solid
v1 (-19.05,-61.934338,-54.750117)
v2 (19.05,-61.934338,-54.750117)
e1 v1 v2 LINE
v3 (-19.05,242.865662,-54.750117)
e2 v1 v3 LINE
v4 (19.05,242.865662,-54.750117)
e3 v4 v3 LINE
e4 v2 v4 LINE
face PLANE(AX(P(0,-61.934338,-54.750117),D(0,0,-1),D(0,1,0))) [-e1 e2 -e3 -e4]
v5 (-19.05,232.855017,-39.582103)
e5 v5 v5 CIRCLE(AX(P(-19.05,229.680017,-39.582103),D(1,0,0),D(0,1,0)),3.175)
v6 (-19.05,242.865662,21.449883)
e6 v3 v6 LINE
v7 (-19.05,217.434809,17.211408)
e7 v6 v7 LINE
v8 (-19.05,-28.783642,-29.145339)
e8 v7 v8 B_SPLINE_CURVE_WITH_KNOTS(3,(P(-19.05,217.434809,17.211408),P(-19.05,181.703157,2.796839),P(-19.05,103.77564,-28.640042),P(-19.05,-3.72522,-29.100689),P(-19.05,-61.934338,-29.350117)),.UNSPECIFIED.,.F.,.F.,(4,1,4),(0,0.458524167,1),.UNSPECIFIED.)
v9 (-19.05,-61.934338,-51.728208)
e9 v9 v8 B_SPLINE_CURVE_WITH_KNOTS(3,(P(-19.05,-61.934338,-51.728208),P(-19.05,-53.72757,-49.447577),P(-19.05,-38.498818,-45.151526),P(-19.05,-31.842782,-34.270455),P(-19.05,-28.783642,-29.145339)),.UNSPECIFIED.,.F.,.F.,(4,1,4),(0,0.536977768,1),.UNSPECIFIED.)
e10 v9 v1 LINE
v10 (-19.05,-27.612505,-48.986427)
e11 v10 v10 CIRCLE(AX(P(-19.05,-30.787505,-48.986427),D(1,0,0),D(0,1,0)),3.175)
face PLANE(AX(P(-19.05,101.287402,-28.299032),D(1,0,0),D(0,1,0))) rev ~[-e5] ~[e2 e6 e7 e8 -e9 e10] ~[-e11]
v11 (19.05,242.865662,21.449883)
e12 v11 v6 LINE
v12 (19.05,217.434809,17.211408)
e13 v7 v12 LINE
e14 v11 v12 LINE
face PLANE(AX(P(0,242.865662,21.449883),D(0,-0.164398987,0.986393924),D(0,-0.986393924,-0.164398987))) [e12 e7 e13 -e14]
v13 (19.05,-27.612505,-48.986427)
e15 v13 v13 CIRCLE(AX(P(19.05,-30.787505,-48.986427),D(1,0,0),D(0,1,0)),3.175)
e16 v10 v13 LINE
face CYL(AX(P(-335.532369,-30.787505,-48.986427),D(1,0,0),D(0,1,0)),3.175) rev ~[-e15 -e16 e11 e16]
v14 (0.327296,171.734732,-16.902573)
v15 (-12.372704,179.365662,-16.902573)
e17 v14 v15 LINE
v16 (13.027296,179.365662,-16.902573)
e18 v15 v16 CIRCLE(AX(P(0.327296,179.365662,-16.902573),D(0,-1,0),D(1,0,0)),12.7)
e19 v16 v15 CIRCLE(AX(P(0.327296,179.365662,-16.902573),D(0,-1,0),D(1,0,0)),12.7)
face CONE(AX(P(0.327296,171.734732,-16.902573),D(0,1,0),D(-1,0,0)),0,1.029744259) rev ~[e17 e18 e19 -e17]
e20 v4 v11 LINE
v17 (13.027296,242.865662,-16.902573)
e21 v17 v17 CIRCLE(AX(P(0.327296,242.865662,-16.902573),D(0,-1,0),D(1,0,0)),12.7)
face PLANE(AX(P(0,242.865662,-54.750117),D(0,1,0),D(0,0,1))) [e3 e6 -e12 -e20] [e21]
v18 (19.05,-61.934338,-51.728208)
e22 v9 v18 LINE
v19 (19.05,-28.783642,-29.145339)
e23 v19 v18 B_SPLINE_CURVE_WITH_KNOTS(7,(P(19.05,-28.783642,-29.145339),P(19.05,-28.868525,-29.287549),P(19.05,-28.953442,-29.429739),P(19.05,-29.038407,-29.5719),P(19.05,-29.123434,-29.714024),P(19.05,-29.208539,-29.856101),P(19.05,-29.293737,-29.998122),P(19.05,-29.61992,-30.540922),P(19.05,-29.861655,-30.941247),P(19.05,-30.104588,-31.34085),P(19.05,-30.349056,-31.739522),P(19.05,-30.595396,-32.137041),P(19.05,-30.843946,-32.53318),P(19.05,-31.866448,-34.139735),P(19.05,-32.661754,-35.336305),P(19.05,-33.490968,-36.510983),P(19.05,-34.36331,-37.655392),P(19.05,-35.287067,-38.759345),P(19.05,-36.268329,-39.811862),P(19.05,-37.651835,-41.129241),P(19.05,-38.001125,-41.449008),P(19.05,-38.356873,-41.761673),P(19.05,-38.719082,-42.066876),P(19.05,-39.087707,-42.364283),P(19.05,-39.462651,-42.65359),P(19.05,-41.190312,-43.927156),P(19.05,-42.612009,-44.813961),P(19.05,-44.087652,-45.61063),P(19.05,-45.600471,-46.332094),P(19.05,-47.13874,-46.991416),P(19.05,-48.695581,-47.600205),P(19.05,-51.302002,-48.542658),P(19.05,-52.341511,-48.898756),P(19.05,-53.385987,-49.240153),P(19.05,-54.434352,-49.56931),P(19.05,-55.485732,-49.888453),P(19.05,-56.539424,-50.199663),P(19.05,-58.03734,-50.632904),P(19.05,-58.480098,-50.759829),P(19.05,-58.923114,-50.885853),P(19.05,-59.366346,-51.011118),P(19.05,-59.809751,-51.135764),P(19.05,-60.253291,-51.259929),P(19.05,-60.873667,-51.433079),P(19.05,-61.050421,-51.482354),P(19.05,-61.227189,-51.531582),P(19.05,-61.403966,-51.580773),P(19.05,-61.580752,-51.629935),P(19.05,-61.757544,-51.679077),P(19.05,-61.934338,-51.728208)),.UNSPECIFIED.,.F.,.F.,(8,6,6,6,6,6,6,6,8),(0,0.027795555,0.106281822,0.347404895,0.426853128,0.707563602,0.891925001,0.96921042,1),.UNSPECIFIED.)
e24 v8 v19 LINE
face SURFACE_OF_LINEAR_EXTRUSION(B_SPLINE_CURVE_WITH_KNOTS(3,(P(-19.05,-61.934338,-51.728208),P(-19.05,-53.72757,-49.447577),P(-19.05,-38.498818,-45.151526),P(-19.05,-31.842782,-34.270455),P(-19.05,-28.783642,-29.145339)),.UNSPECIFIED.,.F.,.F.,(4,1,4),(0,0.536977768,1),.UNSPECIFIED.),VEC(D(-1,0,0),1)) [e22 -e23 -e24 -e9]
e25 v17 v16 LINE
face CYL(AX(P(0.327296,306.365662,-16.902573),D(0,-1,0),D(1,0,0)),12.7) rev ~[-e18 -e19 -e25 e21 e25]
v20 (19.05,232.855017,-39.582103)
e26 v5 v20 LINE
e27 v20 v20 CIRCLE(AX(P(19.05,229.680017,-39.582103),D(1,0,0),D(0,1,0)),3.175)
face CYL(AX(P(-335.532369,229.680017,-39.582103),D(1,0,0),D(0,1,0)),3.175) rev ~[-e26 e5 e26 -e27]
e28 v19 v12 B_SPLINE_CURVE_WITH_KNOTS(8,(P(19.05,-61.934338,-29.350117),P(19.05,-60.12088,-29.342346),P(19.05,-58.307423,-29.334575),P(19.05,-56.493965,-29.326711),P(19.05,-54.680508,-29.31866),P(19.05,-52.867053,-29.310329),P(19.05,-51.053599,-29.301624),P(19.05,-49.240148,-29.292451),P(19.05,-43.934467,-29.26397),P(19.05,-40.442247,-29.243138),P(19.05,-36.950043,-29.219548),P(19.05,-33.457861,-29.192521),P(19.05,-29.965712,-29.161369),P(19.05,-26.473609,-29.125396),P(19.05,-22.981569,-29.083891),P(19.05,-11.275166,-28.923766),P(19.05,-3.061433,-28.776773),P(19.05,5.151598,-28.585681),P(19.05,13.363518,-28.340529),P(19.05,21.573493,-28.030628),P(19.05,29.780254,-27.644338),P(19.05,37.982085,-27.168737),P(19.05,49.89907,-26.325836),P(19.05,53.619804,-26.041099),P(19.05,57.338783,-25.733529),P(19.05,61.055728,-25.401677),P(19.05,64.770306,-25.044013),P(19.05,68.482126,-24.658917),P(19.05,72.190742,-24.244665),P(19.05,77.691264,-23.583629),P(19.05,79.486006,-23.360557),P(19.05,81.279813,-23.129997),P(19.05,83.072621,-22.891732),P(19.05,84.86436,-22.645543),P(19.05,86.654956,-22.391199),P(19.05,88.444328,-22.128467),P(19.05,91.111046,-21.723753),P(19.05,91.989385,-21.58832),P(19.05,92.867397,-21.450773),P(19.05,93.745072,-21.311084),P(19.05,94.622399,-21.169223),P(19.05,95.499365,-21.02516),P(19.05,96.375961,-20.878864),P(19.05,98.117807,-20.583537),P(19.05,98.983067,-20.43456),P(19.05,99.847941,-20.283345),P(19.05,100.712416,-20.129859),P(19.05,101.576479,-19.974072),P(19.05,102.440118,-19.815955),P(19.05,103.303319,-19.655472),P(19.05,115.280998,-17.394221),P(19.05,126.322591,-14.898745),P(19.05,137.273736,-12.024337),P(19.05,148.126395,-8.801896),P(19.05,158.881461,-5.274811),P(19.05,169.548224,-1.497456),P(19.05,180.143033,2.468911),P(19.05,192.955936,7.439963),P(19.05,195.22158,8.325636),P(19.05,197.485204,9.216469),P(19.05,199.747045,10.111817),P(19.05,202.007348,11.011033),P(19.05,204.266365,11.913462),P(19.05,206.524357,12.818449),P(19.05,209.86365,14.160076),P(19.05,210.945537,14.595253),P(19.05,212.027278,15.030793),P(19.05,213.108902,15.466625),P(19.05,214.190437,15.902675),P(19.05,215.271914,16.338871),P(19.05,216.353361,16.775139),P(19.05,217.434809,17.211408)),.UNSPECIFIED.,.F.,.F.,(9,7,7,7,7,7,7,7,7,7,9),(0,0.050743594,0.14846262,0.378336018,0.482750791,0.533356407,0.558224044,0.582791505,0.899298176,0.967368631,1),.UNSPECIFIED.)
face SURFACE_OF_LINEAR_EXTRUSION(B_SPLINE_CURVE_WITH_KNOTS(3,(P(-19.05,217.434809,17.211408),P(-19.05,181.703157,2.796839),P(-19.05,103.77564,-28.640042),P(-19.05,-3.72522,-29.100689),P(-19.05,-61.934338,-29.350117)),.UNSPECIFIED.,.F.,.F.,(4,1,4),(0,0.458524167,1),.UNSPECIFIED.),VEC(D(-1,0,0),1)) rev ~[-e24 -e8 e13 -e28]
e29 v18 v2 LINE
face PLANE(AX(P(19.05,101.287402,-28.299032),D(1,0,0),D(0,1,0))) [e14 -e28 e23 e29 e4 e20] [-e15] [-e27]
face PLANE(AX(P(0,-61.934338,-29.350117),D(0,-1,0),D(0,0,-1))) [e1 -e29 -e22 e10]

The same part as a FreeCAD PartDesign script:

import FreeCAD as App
import Part
import Sketcher
from FreeCAD import Vector
Q = App.Units.Quantity


def add_polygon(sketch, points):
    """Adds a closed chain of lines whose ends are joined by coincident constraints."""
    first, n = sketch.GeometryCount, len(points)
    for a, b in zip(points, points[1:] + points[:1]):
        sketch.addGeometry(Part.LineSegment(App.Vector(*a, 0), App.Vector(*b, 0)), False)
    for i in range(n):
        sketch.addConstraint(Sketcher.Constraint("Coincident", first + i, 2, first + (i + 1) % n, 1))

doc = App.newDocument("Part")
body = doc.addObject("PartDesign::Body", "Body")

# Sketch on YZ plane
sketch1 = body.newObject("Sketcher::SketchObject", "Sketch")
sketch1.AttachmentSupport = (doc.getObject("YZ_Plane"), [""])
sketch1.MapMode = "FlatFace"
add_polygon(sketch1, [(242.865662, 21.449883), (-61.934338, -29.350117), (-61.934338, -54.750117), (242.865662, -54.750117)])  # lines 0-3
sketch1.addConstraint(Sketcher.Constraint("Vertical", 1))
sketch1.addConstraint(Sketcher.Constraint("Horizontal", 2))
sketch1.addConstraint(Sketcher.Constraint("Vertical", 3))
sketch1.addConstraint(Sketcher.Constraint("DistanceX", 2, 1, 2, 2, Q("12 in")))
sketch1.addConstraint(Sketcher.Constraint("DistanceY", 1, 2, 1, 1, Q("1 in")))
sketch1.addConstraint(Sketcher.Constraint("DistanceY", 3, 1, 3, 2, Q("3 in")))
sketch1.addConstraint(Sketcher.Constraint("DistanceX", 0, 2, -1, 1, 61.934338))
sketch1.addConstraint(Sketcher.Constraint("DistanceY", 0, 2, -1, 1, 29.350117))
pad1 = body.newObject("PartDesign::Pad", "Pad")
pad1.Profile = sketch1
pad1.Length = Q("1.5 in")
pad1.Midplane = True

# Sketch on XZ plane
sketch2 = body.newObject("Sketcher::SketchObject", "Sketch001")
sketch2.AttachmentSupport = (doc.getObject("XZ_Plane"), [""])
sketch2.MapMode = "FlatFace"
sketch2.AttachmentOffset = App.Placement(Vector(0, 0, -242.865662), App.Rotation())
sketch2.addGeometry(Part.Circle(Vector(0.327296, -16.902573, 0), Vector(0, 0, 1), 12.7), False)
sketch2.addConstraint(Sketcher.Constraint("Diameter", 0, Q("1 in")))
sketch2.addConstraint(Sketcher.Constraint("DistanceX", -1, 1, 0, 3, 0.327296))
sketch2.addConstraint(Sketcher.Constraint("DistanceY", 0, 3, -1, 1, 16.902573))
doc.recompute()
hole = body.newObject("PartDesign::Hole", "Hole")
hole.Profile = sketch2
hole.ThreadType = "None"
hole.Diameter = Q("1 in")
hole.DepthType = "Dimension"
hole.Depth = Q("2.5 in")
hole.DrillPoint = "Angled"
hole.DrillPointAngle = 118
hole.Reversed = True

# Sketch on YZ plane
sketch3 = body.newObject("Sketcher::SketchObject", "Sketch002")
sketch3.AttachmentSupport = (doc.getObject("YZ_Plane"), [""])
sketch3.MapMode = "FlatFace"
sketch3.AttachmentOffset = App.Placement(Vector(0, 0, -0.75 * 25.4), App.Rotation())
sketch3.addGeometry(Part.LineSegment(Vector(-61.934338, -29.350117, 0), Vector(217.434809, 17.211408, 0)), False)
sketch3.addGeometry(Part.BSplineCurve([Vector(217.434809, 17.211408, 0), Vector(181.703157, 2.796839, 0), Vector(103.77564, -28.640042, 0), Vector(-3.72522, -29.100689, 0), Vector(-61.934338, -29.350117, 0)], [4, 1, 4], [0, 0.458524167, 1], False, 3, [1, 1, 1, 1, 1], False), False)
sketch3.addConstraint(Sketcher.Constraint("Block", 1))
sketch3.addConstraint(Sketcher.Constraint("Coincident", 0, 1, 1, 2))
sketch3.addConstraint(Sketcher.Constraint("Coincident", 1, 1, 0, 2))
pocket1 = body.newObject("PartDesign::Pocket", "Pocket")
pocket1.Profile = sketch3
pocket1.Length = 50.498195
pocket1.Reversed = True

# Sketch on YZ plane
sketch4 = body.newObject("Sketcher::SketchObject", "Sketch003")
sketch4.AttachmentSupport = (doc.getObject("YZ_Plane"), [""])
sketch4.MapMode = "FlatFace"
sketch4.AttachmentOffset = App.Placement(Vector(0, 0, -0.75 * 25.4), App.Rotation())
sketch4.addGeometry(Part.BSplineCurve([Vector(-61.934338, -51.728208, 0), Vector(-53.72757, -49.447577, 0), Vector(-38.498818, -45.151526, 0), Vector(-31.842782, -34.270455, 0), Vector(-28.783642, -29.145339, 0)], [4, 1, 4], [0, 0.536977768, 1], False, 3, [1, 1, 1, 1, 1], False), False)
sketch4.addGeometry(Part.LineSegment(Vector(-61.934338, -51.728208, 0), Vector(-61.934338, -29.350117, 0)), False)
sketch4.addGeometry(Part.BSplineCurve([Vector(-28.783642, -29.145339, 0), Vector(-39.794114, -29.255245, 0), Vector(-50.864226, -29.302681, 0), Vector(-61.934338, -29.350117, 0)], [4, 4], [0.897023034, 1], False, 3, [1, 1, 1, 1], False), False)
sketch4.addConstraint(Sketcher.Constraint("Block", 0))
sketch4.addConstraint(Sketcher.Constraint("Block", 2))
sketch4.addConstraint(Sketcher.Constraint("Coincident", 0, 1, 1, 1))
sketch4.addConstraint(Sketcher.Constraint("Coincident", 1, 2, 2, 2))
pocket2 = body.newObject("PartDesign::Pocket", "Pocket001")
pocket2.Profile = sketch4
pocket2.Length = 40.621154
pocket2.Reversed = True

# Sketch on YZ plane
sketch5 = body.newObject("Sketcher::SketchObject", "Sketch004")
sketch5.AttachmentSupport = (doc.getObject("YZ_Plane"), [""])
sketch5.MapMode = "FlatFace"
sketch5.AttachmentOffset = App.Placement(Vector(0, 0, -0.75 * 25.4), App.Rotation())
sketch5.addGeometry(Part.Circle(Vector(-30.787505, -48.986427, 0), Vector(0, 0, 1), 3.175), False)
sketch5.addConstraint(Sketcher.Constraint("Diameter", 0, Q("0.25 in")))
sketch5.addConstraint(Sketcher.Constraint("DistanceX", 0, 3, -1, 1, 30.787505))
sketch5.addConstraint(Sketcher.Constraint("DistanceY", 0, 3, -1, 1, 48.986427))
doc.recompute()
hole2 = body.newObject("PartDesign::Hole", "Hole001")
hole2.Profile = sketch5
hole2.ThreadType = "None"
hole2.Diameter = Q("0.25 in")
hole2.DepthType = "ThroughAll"
hole2.Reversed = True

# Sketch on YZ plane
sketch6 = body.newObject("Sketcher::SketchObject", "Sketch005")
sketch6.AttachmentSupport = (doc.getObject("YZ_Plane"), [""])
sketch6.MapMode = "FlatFace"
sketch6.AttachmentOffset = App.Placement(Vector(0, 0, -0.75 * 25.4), App.Rotation())
sketch6.addGeometry(Part.Circle(Vector(229.680017, -39.582103, 0), Vector(0, 0, 1), 3.175), False)
sketch6.addConstraint(Sketcher.Constraint("Diameter", 0, Q("0.25 in")))
sketch6.addConstraint(Sketcher.Constraint("DistanceX", -1, 1, 0, 3, 229.680017))
sketch6.addConstraint(Sketcher.Constraint("DistanceY", 0, 3, -1, 1, 39.582103))
doc.recompute()
hole3 = body.newObject("PartDesign::Hole", "Hole002")
hole3.Profile = sketch6
hole3.ThreadType = "None"
hole3.Diameter = Q("0.25 in")
hole3.DepthType = "ThroughAll"
hole3.Reversed = True

doc.recompute()
